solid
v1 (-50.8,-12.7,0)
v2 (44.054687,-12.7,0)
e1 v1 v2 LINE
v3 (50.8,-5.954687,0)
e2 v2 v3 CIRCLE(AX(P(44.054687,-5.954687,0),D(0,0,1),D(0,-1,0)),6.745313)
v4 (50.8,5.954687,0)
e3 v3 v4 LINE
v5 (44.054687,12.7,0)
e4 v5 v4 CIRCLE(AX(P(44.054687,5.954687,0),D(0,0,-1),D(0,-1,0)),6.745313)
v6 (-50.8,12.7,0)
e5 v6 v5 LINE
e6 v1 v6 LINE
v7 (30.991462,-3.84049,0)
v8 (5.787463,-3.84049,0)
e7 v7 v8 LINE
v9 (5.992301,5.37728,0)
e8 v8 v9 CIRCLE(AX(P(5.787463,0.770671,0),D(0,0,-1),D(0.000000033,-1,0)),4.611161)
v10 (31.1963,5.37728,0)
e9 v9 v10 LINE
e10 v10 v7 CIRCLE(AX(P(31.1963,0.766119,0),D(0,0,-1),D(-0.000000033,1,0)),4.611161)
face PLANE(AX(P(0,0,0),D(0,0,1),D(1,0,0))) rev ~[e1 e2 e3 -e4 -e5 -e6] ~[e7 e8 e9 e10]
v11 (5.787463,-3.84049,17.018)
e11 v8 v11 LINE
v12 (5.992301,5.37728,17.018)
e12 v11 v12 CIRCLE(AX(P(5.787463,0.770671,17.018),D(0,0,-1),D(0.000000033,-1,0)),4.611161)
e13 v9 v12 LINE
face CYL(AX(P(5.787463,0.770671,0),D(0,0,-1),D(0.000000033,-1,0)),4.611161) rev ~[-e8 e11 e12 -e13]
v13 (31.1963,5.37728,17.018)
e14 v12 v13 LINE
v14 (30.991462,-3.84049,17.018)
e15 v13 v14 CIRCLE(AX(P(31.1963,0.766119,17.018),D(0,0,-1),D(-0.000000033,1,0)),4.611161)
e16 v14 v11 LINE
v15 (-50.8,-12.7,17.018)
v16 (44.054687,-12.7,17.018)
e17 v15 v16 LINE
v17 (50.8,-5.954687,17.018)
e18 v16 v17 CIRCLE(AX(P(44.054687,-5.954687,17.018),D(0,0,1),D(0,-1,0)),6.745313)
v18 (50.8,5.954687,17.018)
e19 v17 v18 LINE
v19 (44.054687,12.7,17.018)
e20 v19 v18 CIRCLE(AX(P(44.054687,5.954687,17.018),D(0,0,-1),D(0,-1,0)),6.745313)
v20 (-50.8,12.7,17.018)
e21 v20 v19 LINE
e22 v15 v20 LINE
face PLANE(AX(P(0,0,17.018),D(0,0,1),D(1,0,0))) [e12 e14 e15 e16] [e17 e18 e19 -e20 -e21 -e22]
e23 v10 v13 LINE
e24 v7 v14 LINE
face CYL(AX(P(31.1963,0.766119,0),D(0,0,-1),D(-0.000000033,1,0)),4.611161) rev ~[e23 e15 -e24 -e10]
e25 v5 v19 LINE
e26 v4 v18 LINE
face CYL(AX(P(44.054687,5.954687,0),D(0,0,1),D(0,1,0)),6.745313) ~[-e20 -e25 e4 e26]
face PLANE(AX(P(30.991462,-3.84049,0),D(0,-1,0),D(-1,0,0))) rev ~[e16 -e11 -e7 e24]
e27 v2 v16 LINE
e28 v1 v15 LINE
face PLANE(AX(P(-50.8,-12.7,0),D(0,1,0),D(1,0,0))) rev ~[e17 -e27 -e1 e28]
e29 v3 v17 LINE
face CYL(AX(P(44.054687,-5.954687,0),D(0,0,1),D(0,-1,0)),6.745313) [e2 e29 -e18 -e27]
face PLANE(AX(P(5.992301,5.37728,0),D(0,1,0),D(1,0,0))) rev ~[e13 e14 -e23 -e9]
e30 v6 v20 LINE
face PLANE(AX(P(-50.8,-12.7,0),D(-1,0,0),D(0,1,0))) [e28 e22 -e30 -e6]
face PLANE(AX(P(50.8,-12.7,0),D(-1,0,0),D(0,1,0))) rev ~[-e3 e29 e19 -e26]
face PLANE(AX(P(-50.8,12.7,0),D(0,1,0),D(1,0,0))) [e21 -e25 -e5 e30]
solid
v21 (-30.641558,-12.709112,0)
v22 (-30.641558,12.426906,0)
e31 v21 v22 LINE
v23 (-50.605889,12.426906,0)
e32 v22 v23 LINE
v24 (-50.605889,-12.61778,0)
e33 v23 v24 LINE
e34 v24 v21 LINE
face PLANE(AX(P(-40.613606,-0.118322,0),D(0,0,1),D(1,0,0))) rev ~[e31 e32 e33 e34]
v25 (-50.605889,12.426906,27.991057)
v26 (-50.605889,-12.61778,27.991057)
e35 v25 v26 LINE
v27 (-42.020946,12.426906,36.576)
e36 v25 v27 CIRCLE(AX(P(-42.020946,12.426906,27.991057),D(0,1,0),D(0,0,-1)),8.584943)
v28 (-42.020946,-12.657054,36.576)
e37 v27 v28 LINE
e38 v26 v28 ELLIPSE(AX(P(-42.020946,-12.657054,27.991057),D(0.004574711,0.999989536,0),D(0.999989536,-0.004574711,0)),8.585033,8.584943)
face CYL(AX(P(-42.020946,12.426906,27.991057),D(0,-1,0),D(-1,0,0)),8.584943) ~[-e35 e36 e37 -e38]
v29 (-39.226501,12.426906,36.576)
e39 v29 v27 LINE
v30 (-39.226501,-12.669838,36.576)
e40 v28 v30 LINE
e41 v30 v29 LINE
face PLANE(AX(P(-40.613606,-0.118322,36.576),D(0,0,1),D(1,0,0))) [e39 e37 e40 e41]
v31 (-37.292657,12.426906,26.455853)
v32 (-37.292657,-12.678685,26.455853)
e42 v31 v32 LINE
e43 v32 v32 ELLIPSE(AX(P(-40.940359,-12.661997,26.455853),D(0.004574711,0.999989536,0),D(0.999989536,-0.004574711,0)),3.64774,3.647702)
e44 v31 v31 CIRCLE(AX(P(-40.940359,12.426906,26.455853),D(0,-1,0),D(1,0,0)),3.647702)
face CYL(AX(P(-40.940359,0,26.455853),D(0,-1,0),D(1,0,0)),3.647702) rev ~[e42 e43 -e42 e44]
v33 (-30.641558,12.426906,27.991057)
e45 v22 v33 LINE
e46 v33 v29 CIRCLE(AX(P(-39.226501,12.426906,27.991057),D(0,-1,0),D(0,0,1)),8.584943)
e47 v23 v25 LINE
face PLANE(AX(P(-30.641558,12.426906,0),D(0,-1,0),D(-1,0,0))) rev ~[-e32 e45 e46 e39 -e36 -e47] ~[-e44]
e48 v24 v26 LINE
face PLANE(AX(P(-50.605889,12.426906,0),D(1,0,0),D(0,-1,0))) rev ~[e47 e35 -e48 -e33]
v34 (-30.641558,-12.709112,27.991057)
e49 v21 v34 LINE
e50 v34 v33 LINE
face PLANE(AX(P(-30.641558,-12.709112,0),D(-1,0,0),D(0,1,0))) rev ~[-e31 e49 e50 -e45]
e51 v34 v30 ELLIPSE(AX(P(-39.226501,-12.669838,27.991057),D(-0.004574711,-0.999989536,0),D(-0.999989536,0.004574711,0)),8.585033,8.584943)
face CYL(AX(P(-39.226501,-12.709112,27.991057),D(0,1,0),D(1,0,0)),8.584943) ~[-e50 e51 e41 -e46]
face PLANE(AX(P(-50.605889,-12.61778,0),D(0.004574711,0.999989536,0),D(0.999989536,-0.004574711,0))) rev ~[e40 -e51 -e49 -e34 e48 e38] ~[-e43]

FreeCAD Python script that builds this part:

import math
import FreeCAD as App
import Part
import Sketcher
Q = App.Units.Quantity


def edges_at(feature, points):
    """Names of the edges that pass closest to the given points."""
    edges = feature.Shape.Edges
    near = lambda p: min(range(len(edges)), key=lambda i: edges[i].distToShape(Part.Vertex(*p))[0])
    return sorted({f"Edge{near(p) + 1}" for p in points})

doc = App.newDocument("Part")
body = doc.addObject("PartDesign::Body", "Body")

# Sketch on XY plane
sketch1 = body.newObject("Sketcher::SketchObject", "Sketch")
sketch1.AttachmentSupport = (doc.getObject("XY_Plane"), [""])
sketch1.MapMode = "FlatFace"
sketch1.addGeometry(Part.LineSegment(App.Vector(-50.8, 12.7, 0), App.Vector(-50.8, -12.7, 0)), False)
sketch1.addGeometry(Part.LineSegment(App.Vector(-50.8, -12.7, 0), App.Vector(50.8, -12.7, 0)), False)
sketch1.addGeometry(Part.LineSegment(App.Vector(50.8, -12.7, 0), App.Vector(50.8, 12.7, 0)), False)
sketch1.addGeometry(Part.LineSegment(App.Vector(50.8, 12.7, 0), App.Vector(-50.8, 12.7, 0)), False)
sketch1.addGeometry(Part.ArcOfCircle(Part.Circle(App.Vector(5.8, 0.8, 0), App.Vector(0, 0, 1), 4.6), math.radians(87), math.radians(270)), False)
sketch1.addGeometry(Part.LineSegment(App.Vector(6, 5.4, 0), App.Vector(31.2, 5.4, 0)), False)
sketch1.addGeometry(Part.ArcOfCircle(Part.Circle(App.Vector(31.2, 0.8, 0), App.Vector(0, 0, 1), 4.6), math.radians(-93), math.radians(90)), False)
sketch1.addGeometry(Part.LineSegment(App.Vector(31, -3.8, 0), App.Vector(5.8, -3.8, 0)), False)
sketch1.addConstraint(Sketcher.Constraint("Coincident", 0, 2, 1, 1))
sketch1.addConstraint(Sketcher.Constraint("Coincident", 1, 2, 2, 1))
sketch1.addConstraint(Sketcher.Constraint("Coincident", 2, 2, 3, 1))
sketch1.addConstraint(Sketcher.Constraint("Coincident", 3, 2, 0, 1))
sketch1.addConstraint(Sketcher.Constraint("Coincident", 4, 1, 5, 1))
sketch1.addConstraint(Sketcher.Constraint("Tangent", 5, 2, 6, 2))
sketch1.addConstraint(Sketcher.Constraint("Coincident", 6, 1, 7, 1))
sketch1.addConstraint(Sketcher.Constraint("Tangent", 7, 2, 4, 2))
sketch1.addConstraint(Sketcher.Constraint("Vertical", 0))
sketch1.addConstraint(Sketcher.Constraint("Horizontal", 1))
sketch1.addConstraint(Sketcher.Constraint("Vertical", 2))
sketch1.addConstraint(Sketcher.Constraint("Horizontal", 3))
sketch1.addConstraint(Sketcher.Constraint("Horizontal", 5))
sketch1.addConstraint(Sketcher.Constraint("Horizontal", 7))
sketch1.addConstraint(Sketcher.Constraint("Equal", 4, 6))
sketch1.addConstraint(Sketcher.Constraint("Symmetric", 0, 2, 2, 2, -1, 1))
sketch1.addConstraint(Sketcher.Constraint("DistanceX", 1, 1, 1, 2, Q("4 in")))
sketch1.addConstraint(Sketcher.Constraint("DistanceY", 0, 2, 0, 1, Q("1 in")))
sketch1.addConstraint(Sketcher.Constraint("Radius", 4, 4.611161))
sketch1.addConstraint(Sketcher.Constraint("DistanceX", 5, 1, 5, 2, 25.203999))
sketch1.addConstraint(Sketcher.Constraint("DistanceX", -1, 1, 6, 3, 31.1963))
sketch1.addConstraint(Sketcher.Constraint("DistanceY", -1, 1, 4, 3, 0.770671))
sketch1.addConstraint(Sketcher.Constraint("DistanceY", -1, 1, 6, 3, 0.766119))
pad1 = body.newObject("PartDesign::Pad", "Pad")
pad1.Profile = sketch1
pad1.Length = Q("0.67 in")
doc.recompute()

fillet = body.newObject("PartDesign::Fillet", "Fillet")
fillet.Base = (pad1, edges_at(pad1, [(50.8, -12.7, 8.509), (50.8, 12.7, 8.509)]))
fillet.Radius = 6.745313
body2 = doc.addObject("PartDesign::Body", "Body001")

# Sketch on XY plane
sketch2 = body2.newObject("Sketcher::SketchObject", "Sketch001")
sketch2.AttachmentSupport = (doc.getObject("XY_Plane001"), [""])
sketch2.MapMode = "FlatFace"
sketch2.addGeometry(Part.LineSegment(App.Vector(-50.605889, -12.61778, 0), App.Vector(-30.641558, -12.709112, 0)), False)
sketch2.addGeometry(Part.LineSegment(App.Vector(-30.641558, -12.709112, 0), App.Vector(-30.641558, 12.426906, 0)), False)
sketch2.addGeometry(Part.LineSegment(App.Vector(-30.641558, 12.426906, 0), App.Vector(-50.605889, 12.426906, 0)), False)
sketch2.addGeometry(Part.LineSegment(App.Vector(-50.605889, 12.426906, 0), App.Vector(-50.605889, -12.61778, 0)), False)
sketch2.addConstraint(Sketcher.Constraint("Coincident", 0, 2, 1, 1))
sketch2.addConstraint(Sketcher.Constraint("Coincident", 1, 2, 2, 1))
sketch2.addConstraint(Sketcher.Constraint("Coincident", 2, 2, 3, 1))
sketch2.addConstraint(Sketcher.Constraint("Coincident", 3, 2, 0, 1))
sketch2.addConstraint(Sketcher.Constraint("Vertical", 1))
sketch2.addConstraint(Sketcher.Constraint("Horizontal", 2))
sketch2.addConstraint(Sketcher.Constraint("Vertical", 3))
sketch2.addConstraint(Sketcher.Constraint("DistanceX", 2, 2, 2, 1, 19.964331))
sketch2.addConstraint(Sketcher.Constraint("DistanceY", 1, 1, 1, 2, 25.136018))
sketch2.addConstraint(Sketcher.Constraint("Distance", 0, 19.96454))
sketch2.addConstraint(Sketcher.Constraint("DistanceX", 0, 2, -1, 1, 30.641558))
sketch2.addConstraint(Sketcher.Constraint("DistanceY", 0, 2, -1, 1, 12.709112))
pad2 = body2.newObject("PartDesign::Pad", "Pad001")
pad2.Profile = sketch2
pad2.Length = Q("1.44 in")
doc.recompute()

fillet2 = body2.newObject("PartDesign::Fillet", "Fillet001")
fillet2.Base = (pad2, edges_at(pad2, [(-30.642, -0.141, 36.576), (-50.606, -0.095, 36.576)]))
fillet2.Radius = 8.584943

# Sketch on XZ plane
sketch3 = body2.newObject("Sketcher::SketchObject", "Sketch002")
sketch3.AttachmentSupport = (doc.getObject("XZ_Plane001"), [""])
sketch3.MapMode = "FlatFace"
sketch3.addGeometry(Part.Circle(App.Vector(-40.9, 26.5, 0), App.Vector(0, 0, 1), 3.6), False)
sketch3.addConstraint(Sketcher.Constraint("Diameter", 0, 7.295404))
sketch3.addConstraint(Sketcher.Constraint("DistanceX", 0, 3, -1, 1, 40.940359))
sketch3.addConstraint(Sketcher.Constraint("DistanceY", -1, 1, 0, 3, 26.455853))
pocket1 = body2.newObject("PartDesign::Pocket", "Pocket")
pocket1.Profile = sketch3
pocket1.Length = Q("2.812 in")
pocket1.Midplane = True

doc.recompute()
